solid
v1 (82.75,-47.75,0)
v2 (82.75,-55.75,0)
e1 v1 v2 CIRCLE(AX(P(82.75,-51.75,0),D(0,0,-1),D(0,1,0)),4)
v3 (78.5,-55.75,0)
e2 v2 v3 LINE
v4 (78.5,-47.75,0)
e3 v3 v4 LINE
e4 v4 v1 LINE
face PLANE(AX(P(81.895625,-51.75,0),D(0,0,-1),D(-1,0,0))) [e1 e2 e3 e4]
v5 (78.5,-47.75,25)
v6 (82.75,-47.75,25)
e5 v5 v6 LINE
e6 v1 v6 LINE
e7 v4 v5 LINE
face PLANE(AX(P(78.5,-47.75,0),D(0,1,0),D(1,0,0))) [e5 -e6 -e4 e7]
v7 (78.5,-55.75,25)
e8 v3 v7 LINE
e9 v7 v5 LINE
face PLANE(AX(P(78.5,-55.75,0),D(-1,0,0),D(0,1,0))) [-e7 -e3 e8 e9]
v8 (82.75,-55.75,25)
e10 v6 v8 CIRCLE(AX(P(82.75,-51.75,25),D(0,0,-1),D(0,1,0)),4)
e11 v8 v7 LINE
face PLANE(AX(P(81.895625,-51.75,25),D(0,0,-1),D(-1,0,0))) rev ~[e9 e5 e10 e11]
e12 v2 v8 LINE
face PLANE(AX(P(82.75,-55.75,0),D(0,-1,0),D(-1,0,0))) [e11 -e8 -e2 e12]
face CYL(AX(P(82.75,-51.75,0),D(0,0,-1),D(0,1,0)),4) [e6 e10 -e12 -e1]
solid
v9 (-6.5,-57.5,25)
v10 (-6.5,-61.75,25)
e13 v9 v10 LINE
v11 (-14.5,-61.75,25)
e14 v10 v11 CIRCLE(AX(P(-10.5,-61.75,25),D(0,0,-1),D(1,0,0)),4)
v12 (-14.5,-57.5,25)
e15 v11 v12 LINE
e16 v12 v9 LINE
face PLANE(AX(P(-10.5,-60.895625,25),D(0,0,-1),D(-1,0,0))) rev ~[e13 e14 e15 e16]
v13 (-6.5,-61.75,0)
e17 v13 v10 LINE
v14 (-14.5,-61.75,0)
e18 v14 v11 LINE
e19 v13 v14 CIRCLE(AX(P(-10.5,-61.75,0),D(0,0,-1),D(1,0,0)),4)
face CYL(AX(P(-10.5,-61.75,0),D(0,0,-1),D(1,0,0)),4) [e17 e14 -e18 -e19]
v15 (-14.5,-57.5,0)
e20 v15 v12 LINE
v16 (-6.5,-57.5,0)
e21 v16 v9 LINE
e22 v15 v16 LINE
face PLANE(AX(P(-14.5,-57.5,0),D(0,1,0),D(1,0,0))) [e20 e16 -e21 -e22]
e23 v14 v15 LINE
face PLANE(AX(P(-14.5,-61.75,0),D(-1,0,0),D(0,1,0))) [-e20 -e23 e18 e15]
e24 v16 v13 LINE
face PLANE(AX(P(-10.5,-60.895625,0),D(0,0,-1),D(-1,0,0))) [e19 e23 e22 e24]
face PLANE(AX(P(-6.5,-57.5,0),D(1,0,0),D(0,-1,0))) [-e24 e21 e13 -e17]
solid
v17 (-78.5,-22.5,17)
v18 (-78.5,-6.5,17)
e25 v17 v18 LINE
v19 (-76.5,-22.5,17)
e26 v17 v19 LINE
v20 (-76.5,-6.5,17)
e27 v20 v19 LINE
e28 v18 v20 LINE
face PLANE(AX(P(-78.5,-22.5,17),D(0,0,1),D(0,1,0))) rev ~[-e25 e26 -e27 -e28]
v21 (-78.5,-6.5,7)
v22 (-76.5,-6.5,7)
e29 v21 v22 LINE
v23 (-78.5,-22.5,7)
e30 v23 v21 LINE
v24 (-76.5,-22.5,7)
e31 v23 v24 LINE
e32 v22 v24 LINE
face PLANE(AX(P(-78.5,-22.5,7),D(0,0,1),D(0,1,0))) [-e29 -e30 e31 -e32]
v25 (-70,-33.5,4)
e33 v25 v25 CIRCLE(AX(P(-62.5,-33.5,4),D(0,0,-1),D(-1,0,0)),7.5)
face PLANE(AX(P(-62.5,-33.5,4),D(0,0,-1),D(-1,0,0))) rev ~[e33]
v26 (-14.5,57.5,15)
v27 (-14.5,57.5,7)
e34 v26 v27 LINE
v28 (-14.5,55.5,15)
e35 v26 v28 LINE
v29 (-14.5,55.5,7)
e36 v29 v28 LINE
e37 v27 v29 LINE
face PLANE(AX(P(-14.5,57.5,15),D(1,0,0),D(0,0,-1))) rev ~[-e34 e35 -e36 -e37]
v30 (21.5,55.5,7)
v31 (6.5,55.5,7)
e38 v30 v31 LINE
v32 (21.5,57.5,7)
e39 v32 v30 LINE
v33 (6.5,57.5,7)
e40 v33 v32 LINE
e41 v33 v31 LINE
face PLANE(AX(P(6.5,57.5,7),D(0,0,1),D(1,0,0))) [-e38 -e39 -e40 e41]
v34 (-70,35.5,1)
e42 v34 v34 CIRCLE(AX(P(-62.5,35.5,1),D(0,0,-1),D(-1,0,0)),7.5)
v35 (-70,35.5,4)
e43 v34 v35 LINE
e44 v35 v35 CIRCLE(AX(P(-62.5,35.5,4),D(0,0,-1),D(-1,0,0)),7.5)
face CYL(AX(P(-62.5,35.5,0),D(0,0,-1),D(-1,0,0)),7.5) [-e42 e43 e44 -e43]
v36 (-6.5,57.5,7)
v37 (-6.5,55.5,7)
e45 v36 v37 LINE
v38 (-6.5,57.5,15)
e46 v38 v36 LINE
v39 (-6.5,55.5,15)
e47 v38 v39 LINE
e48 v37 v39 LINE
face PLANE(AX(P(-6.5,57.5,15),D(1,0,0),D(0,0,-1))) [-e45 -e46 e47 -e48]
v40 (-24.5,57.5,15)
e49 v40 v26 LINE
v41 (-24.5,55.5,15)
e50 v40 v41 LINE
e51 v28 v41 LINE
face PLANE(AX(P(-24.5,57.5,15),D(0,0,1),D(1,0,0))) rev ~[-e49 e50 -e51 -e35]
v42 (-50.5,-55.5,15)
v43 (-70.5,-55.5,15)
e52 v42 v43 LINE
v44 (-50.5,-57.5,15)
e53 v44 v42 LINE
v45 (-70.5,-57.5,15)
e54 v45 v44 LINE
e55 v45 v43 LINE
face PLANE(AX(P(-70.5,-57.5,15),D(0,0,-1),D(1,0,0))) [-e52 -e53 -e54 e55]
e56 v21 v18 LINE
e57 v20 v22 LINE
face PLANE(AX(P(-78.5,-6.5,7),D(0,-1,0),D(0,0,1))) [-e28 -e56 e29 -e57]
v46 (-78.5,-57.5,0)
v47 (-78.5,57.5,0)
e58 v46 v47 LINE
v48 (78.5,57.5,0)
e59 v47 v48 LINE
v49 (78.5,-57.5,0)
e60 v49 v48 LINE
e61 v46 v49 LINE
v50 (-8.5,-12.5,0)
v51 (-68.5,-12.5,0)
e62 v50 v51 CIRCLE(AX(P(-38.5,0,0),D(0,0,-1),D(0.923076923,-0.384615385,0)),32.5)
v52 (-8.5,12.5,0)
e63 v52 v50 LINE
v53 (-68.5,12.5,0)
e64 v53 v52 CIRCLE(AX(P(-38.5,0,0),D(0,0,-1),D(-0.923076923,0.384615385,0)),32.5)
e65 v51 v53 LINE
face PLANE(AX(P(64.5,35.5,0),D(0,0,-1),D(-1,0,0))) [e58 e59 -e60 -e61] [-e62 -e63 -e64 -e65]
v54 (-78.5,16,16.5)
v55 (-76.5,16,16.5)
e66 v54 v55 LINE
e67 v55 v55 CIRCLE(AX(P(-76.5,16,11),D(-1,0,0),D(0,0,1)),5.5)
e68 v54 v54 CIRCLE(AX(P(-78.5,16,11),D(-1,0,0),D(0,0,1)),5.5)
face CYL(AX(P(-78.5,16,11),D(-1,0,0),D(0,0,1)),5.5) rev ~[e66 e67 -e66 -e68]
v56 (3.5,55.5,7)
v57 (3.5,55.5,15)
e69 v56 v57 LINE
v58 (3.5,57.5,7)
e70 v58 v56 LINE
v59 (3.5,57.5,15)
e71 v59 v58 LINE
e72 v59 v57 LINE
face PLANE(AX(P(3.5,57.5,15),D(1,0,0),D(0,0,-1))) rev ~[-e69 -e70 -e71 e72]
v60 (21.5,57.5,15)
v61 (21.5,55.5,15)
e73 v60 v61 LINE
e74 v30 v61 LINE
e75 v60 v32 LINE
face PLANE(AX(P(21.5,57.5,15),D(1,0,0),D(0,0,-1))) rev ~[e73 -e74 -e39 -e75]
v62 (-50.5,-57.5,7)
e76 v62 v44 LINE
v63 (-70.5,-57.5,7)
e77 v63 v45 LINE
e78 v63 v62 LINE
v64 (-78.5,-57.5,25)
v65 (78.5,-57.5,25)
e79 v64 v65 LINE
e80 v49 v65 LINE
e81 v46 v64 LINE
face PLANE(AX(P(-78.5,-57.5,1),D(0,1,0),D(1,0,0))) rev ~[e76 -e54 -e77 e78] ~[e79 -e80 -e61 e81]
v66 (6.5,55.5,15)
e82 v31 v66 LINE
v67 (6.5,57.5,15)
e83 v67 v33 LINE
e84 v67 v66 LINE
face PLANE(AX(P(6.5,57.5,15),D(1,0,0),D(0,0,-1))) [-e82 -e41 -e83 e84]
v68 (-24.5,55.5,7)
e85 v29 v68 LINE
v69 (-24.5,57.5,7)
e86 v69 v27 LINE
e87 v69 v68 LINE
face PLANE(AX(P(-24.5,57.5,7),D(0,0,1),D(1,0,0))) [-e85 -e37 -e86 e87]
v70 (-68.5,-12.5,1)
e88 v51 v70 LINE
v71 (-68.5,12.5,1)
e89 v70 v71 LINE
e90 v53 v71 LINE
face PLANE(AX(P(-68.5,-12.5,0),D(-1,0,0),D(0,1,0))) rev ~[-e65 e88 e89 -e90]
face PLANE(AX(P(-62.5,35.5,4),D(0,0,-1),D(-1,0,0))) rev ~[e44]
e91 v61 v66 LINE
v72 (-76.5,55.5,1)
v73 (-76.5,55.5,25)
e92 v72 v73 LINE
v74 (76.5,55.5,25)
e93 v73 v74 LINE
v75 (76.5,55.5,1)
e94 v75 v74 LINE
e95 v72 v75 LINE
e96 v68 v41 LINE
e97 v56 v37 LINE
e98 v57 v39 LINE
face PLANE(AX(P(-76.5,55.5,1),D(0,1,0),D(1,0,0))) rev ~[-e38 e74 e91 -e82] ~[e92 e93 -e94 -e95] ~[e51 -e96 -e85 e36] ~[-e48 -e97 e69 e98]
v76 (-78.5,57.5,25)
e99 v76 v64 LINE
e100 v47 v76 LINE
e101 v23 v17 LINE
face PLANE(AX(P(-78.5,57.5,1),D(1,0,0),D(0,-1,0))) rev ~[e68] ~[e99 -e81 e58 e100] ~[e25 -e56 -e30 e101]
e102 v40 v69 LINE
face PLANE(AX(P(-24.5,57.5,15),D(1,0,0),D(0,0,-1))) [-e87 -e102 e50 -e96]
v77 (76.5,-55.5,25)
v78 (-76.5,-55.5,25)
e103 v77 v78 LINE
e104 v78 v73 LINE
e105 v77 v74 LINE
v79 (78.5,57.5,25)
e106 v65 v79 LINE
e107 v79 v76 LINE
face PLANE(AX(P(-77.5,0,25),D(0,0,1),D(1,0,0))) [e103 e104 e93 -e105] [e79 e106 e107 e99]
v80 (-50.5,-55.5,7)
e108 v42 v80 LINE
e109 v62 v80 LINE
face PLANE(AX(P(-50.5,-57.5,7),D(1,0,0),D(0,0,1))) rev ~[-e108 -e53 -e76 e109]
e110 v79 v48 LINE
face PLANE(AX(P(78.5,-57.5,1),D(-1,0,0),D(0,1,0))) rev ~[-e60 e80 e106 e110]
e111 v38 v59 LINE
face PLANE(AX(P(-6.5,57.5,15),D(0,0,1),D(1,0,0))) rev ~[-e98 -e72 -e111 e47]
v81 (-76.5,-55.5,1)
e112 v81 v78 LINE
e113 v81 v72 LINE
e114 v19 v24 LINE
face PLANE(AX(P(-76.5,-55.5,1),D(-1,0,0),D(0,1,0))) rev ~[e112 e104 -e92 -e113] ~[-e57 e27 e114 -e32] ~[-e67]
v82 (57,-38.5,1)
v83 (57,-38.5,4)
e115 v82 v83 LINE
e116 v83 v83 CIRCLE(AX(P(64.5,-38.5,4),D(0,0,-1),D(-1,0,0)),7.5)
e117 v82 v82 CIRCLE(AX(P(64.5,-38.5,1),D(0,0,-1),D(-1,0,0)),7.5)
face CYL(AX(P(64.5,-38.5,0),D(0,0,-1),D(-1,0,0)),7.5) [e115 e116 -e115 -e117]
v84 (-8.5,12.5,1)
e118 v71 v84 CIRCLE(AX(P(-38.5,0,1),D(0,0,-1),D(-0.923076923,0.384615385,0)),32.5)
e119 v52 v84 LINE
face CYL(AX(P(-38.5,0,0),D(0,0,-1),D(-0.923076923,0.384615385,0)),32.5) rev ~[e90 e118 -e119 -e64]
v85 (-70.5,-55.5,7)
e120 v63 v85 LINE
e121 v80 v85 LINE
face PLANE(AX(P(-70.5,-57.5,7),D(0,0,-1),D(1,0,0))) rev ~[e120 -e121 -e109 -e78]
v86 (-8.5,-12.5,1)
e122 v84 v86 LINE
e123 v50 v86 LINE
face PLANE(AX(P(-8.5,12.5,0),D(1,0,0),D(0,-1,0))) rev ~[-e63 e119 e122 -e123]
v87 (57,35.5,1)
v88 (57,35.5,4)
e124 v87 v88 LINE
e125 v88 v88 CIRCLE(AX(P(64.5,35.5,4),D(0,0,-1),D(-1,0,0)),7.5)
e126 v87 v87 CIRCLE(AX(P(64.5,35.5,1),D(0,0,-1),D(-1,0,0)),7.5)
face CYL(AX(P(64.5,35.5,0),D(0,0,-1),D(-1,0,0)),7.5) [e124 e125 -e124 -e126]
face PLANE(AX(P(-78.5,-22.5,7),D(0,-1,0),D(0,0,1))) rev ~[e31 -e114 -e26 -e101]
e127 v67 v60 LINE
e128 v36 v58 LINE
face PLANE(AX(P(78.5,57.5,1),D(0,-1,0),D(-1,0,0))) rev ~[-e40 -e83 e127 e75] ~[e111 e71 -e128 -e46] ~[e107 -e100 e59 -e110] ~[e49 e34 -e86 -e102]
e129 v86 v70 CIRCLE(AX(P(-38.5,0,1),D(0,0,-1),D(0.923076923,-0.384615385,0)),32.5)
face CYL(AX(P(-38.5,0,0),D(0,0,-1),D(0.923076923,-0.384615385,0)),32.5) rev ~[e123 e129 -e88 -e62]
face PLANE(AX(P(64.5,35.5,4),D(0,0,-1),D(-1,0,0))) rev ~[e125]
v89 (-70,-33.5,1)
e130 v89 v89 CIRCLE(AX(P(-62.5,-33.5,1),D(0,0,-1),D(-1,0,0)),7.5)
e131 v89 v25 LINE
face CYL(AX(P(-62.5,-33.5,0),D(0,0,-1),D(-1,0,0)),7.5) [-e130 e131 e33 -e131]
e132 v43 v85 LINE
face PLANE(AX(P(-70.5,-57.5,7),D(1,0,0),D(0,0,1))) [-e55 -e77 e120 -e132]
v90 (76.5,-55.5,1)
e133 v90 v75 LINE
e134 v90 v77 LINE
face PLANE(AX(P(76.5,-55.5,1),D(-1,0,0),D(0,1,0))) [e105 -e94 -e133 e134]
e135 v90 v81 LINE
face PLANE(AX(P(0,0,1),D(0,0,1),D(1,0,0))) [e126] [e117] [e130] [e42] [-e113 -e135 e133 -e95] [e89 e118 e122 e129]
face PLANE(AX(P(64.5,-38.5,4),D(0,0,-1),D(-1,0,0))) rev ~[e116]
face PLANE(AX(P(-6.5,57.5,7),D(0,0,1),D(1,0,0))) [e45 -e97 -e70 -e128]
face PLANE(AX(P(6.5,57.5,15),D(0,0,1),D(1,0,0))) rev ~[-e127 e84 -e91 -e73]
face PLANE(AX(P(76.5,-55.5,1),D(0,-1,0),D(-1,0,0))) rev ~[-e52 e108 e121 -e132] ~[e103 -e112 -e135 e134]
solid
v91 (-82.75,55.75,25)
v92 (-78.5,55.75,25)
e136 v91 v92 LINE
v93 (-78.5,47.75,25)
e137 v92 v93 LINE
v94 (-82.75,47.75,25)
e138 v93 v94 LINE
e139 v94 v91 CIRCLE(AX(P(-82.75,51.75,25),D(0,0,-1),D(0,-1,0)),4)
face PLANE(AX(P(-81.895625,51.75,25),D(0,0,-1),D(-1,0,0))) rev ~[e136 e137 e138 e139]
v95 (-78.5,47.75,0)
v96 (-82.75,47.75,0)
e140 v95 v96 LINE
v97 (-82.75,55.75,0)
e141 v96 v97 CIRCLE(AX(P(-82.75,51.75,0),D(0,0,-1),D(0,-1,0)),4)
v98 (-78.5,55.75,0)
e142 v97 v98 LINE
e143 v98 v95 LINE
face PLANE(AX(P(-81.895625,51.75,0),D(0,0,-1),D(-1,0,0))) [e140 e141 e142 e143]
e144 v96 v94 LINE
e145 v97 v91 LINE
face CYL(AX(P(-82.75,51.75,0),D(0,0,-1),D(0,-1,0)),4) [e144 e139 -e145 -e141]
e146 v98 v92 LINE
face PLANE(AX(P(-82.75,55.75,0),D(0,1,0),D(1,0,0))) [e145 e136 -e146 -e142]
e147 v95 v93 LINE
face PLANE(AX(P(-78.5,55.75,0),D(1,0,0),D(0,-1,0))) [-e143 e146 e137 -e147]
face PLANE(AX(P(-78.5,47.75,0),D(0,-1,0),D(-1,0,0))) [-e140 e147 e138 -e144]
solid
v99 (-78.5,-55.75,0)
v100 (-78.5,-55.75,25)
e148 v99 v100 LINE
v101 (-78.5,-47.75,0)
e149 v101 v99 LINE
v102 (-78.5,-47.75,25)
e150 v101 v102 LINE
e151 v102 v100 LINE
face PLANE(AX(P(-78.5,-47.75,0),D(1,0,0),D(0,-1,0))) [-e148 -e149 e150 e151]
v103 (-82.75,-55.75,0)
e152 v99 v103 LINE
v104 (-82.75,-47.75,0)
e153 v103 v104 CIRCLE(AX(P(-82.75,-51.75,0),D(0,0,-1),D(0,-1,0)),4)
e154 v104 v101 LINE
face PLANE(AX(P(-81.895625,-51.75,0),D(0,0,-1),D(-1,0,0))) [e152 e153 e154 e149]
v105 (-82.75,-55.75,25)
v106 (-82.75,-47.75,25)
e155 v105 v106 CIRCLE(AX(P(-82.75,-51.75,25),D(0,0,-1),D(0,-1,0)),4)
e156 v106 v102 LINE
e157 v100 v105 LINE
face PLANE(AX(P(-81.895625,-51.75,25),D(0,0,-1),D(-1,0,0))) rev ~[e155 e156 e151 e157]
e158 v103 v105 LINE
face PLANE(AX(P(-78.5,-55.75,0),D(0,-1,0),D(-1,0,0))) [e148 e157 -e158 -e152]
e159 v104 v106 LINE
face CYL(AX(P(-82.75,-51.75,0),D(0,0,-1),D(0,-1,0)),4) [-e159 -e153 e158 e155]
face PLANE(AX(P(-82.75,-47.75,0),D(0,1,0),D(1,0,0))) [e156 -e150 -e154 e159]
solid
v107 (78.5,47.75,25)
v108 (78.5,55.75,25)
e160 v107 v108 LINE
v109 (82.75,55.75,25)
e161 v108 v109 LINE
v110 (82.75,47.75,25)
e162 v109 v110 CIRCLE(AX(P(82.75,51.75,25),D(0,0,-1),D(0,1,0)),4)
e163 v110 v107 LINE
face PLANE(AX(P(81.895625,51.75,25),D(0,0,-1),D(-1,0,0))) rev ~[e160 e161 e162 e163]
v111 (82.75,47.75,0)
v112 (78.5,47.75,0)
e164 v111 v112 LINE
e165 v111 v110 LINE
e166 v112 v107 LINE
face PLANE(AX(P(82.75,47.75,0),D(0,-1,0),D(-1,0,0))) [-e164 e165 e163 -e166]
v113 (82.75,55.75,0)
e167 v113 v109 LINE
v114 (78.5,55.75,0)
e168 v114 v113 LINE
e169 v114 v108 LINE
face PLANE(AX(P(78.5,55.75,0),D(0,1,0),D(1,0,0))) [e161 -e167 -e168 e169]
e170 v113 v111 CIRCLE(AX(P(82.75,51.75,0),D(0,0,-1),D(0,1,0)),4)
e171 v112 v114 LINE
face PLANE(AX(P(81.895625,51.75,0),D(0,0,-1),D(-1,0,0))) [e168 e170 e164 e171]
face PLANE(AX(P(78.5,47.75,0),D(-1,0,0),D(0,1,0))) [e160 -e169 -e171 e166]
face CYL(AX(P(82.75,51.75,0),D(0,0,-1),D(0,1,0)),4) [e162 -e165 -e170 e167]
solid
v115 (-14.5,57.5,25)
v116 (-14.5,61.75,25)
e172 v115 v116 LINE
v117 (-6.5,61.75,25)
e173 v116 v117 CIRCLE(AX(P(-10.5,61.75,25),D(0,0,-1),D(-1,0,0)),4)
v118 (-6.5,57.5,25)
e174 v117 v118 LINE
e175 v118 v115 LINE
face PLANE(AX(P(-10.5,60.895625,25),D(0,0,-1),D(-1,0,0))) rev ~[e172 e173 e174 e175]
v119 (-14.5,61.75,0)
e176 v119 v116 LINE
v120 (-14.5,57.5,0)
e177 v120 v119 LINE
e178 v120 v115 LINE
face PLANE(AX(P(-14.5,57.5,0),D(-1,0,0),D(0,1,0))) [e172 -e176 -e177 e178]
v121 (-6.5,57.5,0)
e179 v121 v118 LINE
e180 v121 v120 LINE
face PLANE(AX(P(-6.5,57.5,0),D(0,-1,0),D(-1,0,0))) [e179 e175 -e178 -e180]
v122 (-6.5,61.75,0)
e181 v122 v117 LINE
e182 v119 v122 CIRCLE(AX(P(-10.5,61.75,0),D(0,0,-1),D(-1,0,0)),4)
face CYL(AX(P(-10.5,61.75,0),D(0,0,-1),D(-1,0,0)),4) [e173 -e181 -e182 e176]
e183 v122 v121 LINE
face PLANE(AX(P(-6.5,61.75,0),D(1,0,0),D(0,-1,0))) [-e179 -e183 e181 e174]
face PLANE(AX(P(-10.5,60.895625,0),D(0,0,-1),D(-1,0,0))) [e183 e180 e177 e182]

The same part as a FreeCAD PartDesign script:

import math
import FreeCAD as App
import Part
import Sketcher
Q = App.Units.Quantity


def add_polygon(sketch, points):
    """Adds a closed chain of lines whose ends are joined by coincident constraints."""
    first, n = sketch.GeometryCount, len(points)
    for a, b in zip(points, points[1:] + points[:1]):
        sketch.addGeometry(Part.LineSegment(App.Vector(*a, 0), App.Vector(*b, 0)), False)
    for i in range(n):
        sketch.addConstraint(Sketcher.Constraint("Coincident", first + i, 2, first + (i + 1) % n, 1))

doc = App.newDocument("Part")
params = doc.addObject("Spreadsheet::Sheet", "Params")
for row, (alias, value) in enumerate([
    ("sketch1_width", "157 mm"),
    ("sketch1_height", "115 mm"),
    ("pad1_length", "1 mm"),
    ("sketch2_width", "157 mm"),
    ("sketch2_width2", "153 mm"),
    ("sketch2_height", "115 mm"),
    ("sketch2_height2", "111 mm"),
    ("pad2_length", "24 mm"),
    ("sketch3_diameter", "11 mm"),
    ("sketch4_width", "16 mm"),
    ("sketch4_height", "10 mm"),
    ("sketch5_width", "20 mm"),
    ("sketch5_height", "8 mm"),
    ("sketch6_width", "10 mm"),
    ("sketch6_height", "8 mm"),
    ("sketch7_width", "10 mm"),
    ("sketch7_height", "8 mm"),
    ("sketch8_width", "15 mm"),
    ("sketch8_height", "8 mm"),
    ("sketch9_diameter", "15 mm"),
    ("pad3_length", "4 mm"),
    ("sketch10_radius", "32.5 mm"),
    ("sketch10_height", "25 mm"),
    ("sketch11_radius", "4 mm"),
    ("sketch11_width", "4.25 mm"),
    ("pad4_length", "25 mm"),
    ("sketch12_radius", "4 mm"),
    ("sketch12_width", "4.25 mm"),
    ("pad5_length", "25 mm"),
    ("sketch13_radius", "4 mm"),
    ("sketch13_width", "4.25 mm"),
    ("pad6_length", "25 mm"),
    ("sketch14_radius", "4 mm"),
    ("sketch14_width", "4.25 mm"),
    ("pad7_length", "25 mm"),
    ("sketch15_radius", "4 mm"),
    ("sketch15_height", "4.25 mm"),
    ("pad8_length", "25 mm"),
    ("sketch16_radius", "4 mm"),
    ("sketch16_height", "4.25 mm"),
    ("pad9_length", "25 mm"),
], start=1):
    params.set(f"A{row}", alias)
    params.set(f"B{row}", "=" + value)
    params.setAlias(f"B{row}", alias)

body = doc.addObject("PartDesign::Body", "Body")

sketch1 = body.newObject("Sketcher::SketchObject", "Sketch")
sketch1.AttachmentSupport = (doc.getObject("XY_Plane"), [""])
sketch1.MapMode = "FlatFace"
add_polygon(sketch1, [(-78, 58), (-78, -58), (78, -58), (78, 58)])
sketch1.addConstraint([
    Sketcher.Constraint("Vertical", 0),
    Sketcher.Constraint("Horizontal", 1),
    Sketcher.Constraint("Vertical", 2),
    Sketcher.Constraint("Horizontal", 3),
    Sketcher.Constraint("Symmetric", 0, 2, 2, 2, -1, 1),
    Sketcher.Constraint("DistanceX", 1, 1, 1, 2, Q("157 mm")),
    Sketcher.Constraint("DistanceY", 0, 2, 0, 1, Q("115 mm")),
])
sketch1.setExpression("Constraints[9]", "Params.sketch1_width")
sketch1.setExpression("Constraints[10]", "Params.sketch1_height")
pad1 = body.newObject("PartDesign::Pad", "Pad")
pad1.Profile = sketch1
pad1.setExpression("Length", "Params.pad1_length")

sketch2 = body.newObject("Sketcher::SketchObject", "Sketch001")
sketch2.AttachmentSupport = (doc.getObject("XY_Plane"), [""])
sketch2.MapMode = "FlatFace"
sketch2.AttachmentOffset = App.Placement(App.Vector(0, 0, 1), App.Rotation())
add_polygon(sketch2, [(78, 58), (-78, 58), (-78, -58), (78, -58)])
add_polygon(sketch2, [(-76, -56), (-76, 56), (76, 56), (76, -56)])
sketch2.addConstraint([
    Sketcher.Constraint("Horizontal", 0),
    Sketcher.Constraint("Vertical", 1),
    Sketcher.Constraint("Horizontal", 2),
    Sketcher.Constraint("Vertical", 3),
    Sketcher.Constraint("Vertical", 4),
    Sketcher.Constraint("Horizontal", 5),
    Sketcher.Constraint("Vertical", 6),
    Sketcher.Constraint("Horizontal", 7),
    Sketcher.Constraint("Symmetric", 0, 2, 2, 2, -1, 1),
    Sketcher.Constraint("Symmetric", 4, 2, 6, 2, -1, 1),
    Sketcher.Constraint("DistanceX", 0, 2, 0, 1, Q("157 mm")),
    Sketcher.Constraint("DistanceX", 5, 1, 5, 2, Q("153 mm")),
    Sketcher.Constraint("DistanceY", 1, 2, 1, 1, Q("115 mm")),
    Sketcher.Constraint("DistanceY", 4, 1, 4, 2, Q("111 mm")),
])
sketch2.setExpression("Constraints[18]", "Params.sketch2_width")
sketch2.setExpression("Constraints[19]", "Params.sketch2_width2")
sketch2.setExpression("Constraints[20]", "Params.sketch2_height")
sketch2.setExpression("Constraints[21]", "Params.sketch2_height2")
pad2 = body.newObject("PartDesign::Pad", "Pad001")
pad2.Profile = sketch2
pad2.setExpression("Length", "Params.pad2_length")

sketch3 = body.newObject("Sketcher::SketchObject", "Sketch002")
sketch3.AttachmentSupport = (doc.getObject("YZ_Plane"), [""])
sketch3.MapMode = "FlatFace"
sketch3.AttachmentOffset = App.Placement(App.Vector(0, 0, -78.5), App.Rotation())
sketch3.addGeometry(Part.Circle(App.Vector(16, 11, 0), App.Vector(0, 0, 1), 6), False)
sketch3.addConstraint([
    Sketcher.Constraint("Diameter", 0, Q("11 mm")),
    Sketcher.Constraint("DistanceX", -1, 1, 0, 3, Q("16 mm")),
    Sketcher.Constraint("DistanceY", -1, 1, 0, 3, Q("11 mm")),
])
sketch3.setExpression("Constraints[0]", "Params.sketch3_diameter")
pocket1 = body.newObject("PartDesign::Pocket", "Pocket")
pocket1.Profile = sketch3
pocket1.Type = "UpToFirst"
pocket1.Reversed = True

sketch4 = body.newObject("Sketcher::SketchObject", "Sketch003")
sketch4.AttachmentSupport = (doc.getObject("YZ_Plane"), [""])
sketch4.MapMode = "FlatFace"
sketch4.AttachmentOffset = App.Placement(App.Vector(0, 0, -78.5), App.Rotation())
add_polygon(sketch4, [(-6, 7), (-22, 7), (-22, 17), (-6, 17)])
sketch4.addConstraint([
    Sketcher.Constraint("Horizontal", 0),
    Sketcher.Constraint("Vertical", 1),
    Sketcher.Constraint("Horizontal", 2),
    Sketcher.Constraint("Vertical", 3),
    Sketcher.Constraint("DistanceX", 0, 2, 0, 1, Q("16 mm")),
    Sketcher.Constraint("DistanceY", 1, 1, 1, 2, Q("10 mm")),
    Sketcher.Constraint("DistanceY", -1, 1, 0, 2, Q("7 mm")),
    Sketcher.Constraint("DistanceX", 0, 2, -1, 1, Q("22.5 mm")),
])
sketch4.setExpression("Constraints[8]", "Params.sketch4_width")
sketch4.setExpression("Constraints[9]", "Params.sketch4_height")
pocket2 = body.newObject("PartDesign::Pocket", "Pocket001")
pocket2.Profile = sketch4
pocket2.Type = "UpToFirst"
pocket2.Reversed = True

sketch5 = body.newObject("Sketcher::SketchObject", "Sketch004")
sketch5.AttachmentSupport = (doc.getObject("XZ_Plane"), [""])
sketch5.MapMode = "FlatFace"
sketch5.AttachmentOffset = App.Placement(App.Vector(0, 0, 57.5), App.Rotation())
add_polygon(sketch5, [(-70, 15), (-70, 7), (-50, 7), (-50, 15)])
sketch5.addConstraint([
    Sketcher.Constraint("Vertical", 0),
    Sketcher.Constraint("Horizontal", 1),
    Sketcher.Constraint("Vertical", 2),
    Sketcher.Constraint("Horizontal", 3),
    Sketcher.Constraint("DistanceX", 1, 1, 1, 2, Q("20 mm")),
    Sketcher.Constraint("DistanceY", 0, 2, 0, 1, Q("8 mm")),
    Sketcher.Constraint("DistanceY", -1, 1, 0, 2, Q("7 mm")),
    Sketcher.Constraint("DistanceX", 0, 2, -1, 1, Q("70.5 mm")),
])
sketch5.setExpression("Constraints[8]", "Params.sketch5_width")
sketch5.setExpression("Constraints[9]", "Params.sketch5_height")
pocket3 = body.newObject("PartDesign::Pocket", "Pocket002")
pocket3.Profile = sketch5
pocket3.Type = "UpToFirst"

sketch6 = body.newObject("Sketcher::SketchObject", "Sketch005")
sketch6.AttachmentSupport = (doc.getObject("XZ_Plane"), [""])
sketch6.MapMode = "FlatFace"
sketch6.AttachmentOffset = App.Placement(App.Vector(0, 0, -57.5), App.Rotation())
add_polygon(sketch6, [(-24, 7), (-24, 15), (-14, 15), (-14, 7)])
sketch6.addConstraint([
    Sketcher.Constraint("Vertical", 0),
    Sketcher.Constraint("Horizontal", 1),
    Sketcher.Constraint("Vertical", 2),
    Sketcher.Constraint("Horizontal", 3),
    Sketcher.Constraint("DistanceX", 1, 1, 1, 2, Q("10 mm")),
    Sketcher.Constraint("DistanceY", 0, 1, 0, 2, Q("8 mm")),
    Sketcher.Constraint("DistanceY", -1, 1, 0, 2, Q("15 mm")),
    Sketcher.Constraint("DistanceX", 0, 2, -1, 1, Q("24.5 mm")),
])
sketch6.setExpression("Constraints[8]", "Params.sketch6_width")
sketch6.setExpression("Constraints[9]", "Params.sketch6_height")
pocket4 = body.newObject("PartDesign::Pocket", "Pocket003")
pocket4.Profile = sketch6
pocket4.Type = "UpToFirst"
pocket4.Reversed = True

sketch7 = body.newObject("Sketcher::SketchObject", "Sketch006")
sketch7.AttachmentSupport = (doc.getObject("XZ_Plane"), [""])
sketch7.MapMode = "FlatFace"
sketch7.AttachmentOffset = App.Placement(App.Vector(0, 0, -57.5), App.Rotation())
add_polygon(sketch7, [(-6, 7), (-6, 15), (4, 15), (4, 7)])
sketch7.addConstraint([
    Sketcher.Constraint("Vertical", 0),
    Sketcher.Constraint("Horizontal", 1),
    Sketcher.Constraint("Vertical", 2),
    Sketcher.Constraint("Horizontal", 3),
    Sketcher.Constraint("DistanceX", 1, 1, 1, 2, Q("10 mm")),
    Sketcher.Constraint("DistanceY", 0, 1, 0, 2, Q("8 mm")),
    Sketcher.Constraint("DistanceY", -1, 1, 0, 2, Q("15 mm")),
    Sketcher.Constraint("DistanceX", 0, 2, -1, 1, Q("6.5 mm")),
])
sketch7.setExpression("Constraints[8]", "Params.sketch7_width")
sketch7.setExpression("Constraints[9]", "Params.sketch7_height")
pocket5 = body.newObject("PartDesign::Pocket", "Pocket004")
pocket5.Profile = sketch7
pocket5.Type = "UpToFirst"
pocket5.Reversed = True

sketch8 = body.newObject("Sketcher::SketchObject", "Sketch007")
sketch8.AttachmentSupport = (doc.getObject("XZ_Plane"), [""])
sketch8.MapMode = "FlatFace"
sketch8.AttachmentOffset = App.Placement(App.Vector(0, 0, -57.5), App.Rotation())
add_polygon(sketch8, [(6, 7), (6, 15), (22, 15), (22, 7)])
sketch8.addConstraint([
    Sketcher.Constraint("Vertical", 0),
    Sketcher.Constraint("Horizontal", 1),
    Sketcher.Constraint("Vertical", 2),
    Sketcher.Constraint("Horizontal", 3),
    Sketcher.Constraint("DistanceX", 1, 1, 1, 2, Q("15 mm")),
    Sketcher.Constraint("DistanceY", 0, 1, 0, 2, Q("8 mm")),
    Sketcher.Constraint("DistanceY", -1, 1, 0, 2, Q("15 mm")),
    Sketcher.Constraint("DistanceX", -1, 1, 0, 2, Q("6.5 mm")),
])
sketch8.setExpression("Constraints[8]", "Params.sketch8_width")
sketch8.setExpression("Constraints[9]", "Params.sketch8_height")
pocket6 = body.newObject("PartDesign::Pocket", "Pocket005")
pocket6.Profile = sketch8
pocket6.Type = "UpToFirst"
pocket6.Reversed = True

sketch9 = body.newObject("Sketcher::SketchObject", "Sketch008")
sketch9.AttachmentSupport = (doc.getObject("XY_Plane"), [""])
sketch9.MapMode = "FlatFace"
sketch9.addGeometry([
    Part.Circle(App.Vector(64, 36, 0), App.Vector(0, 0, 1), 8),
    Part.Circle(App.Vector(-62, 36, 0), App.Vector(0, 0, 1), 8),
    Part.Circle(App.Vector(-62, -34, 0), App.Vector(0, 0, 1), 8),
    Part.Circle(App.Vector(64, -38, 0), App.Vector(0, 0, 1), 8),
], False)
sketch9.addConstraint([
    Sketcher.Constraint("Equal", 0, 1),
    Sketcher.Constraint("Equal", 1, 2),
    Sketcher.Constraint("Equal", 2, 3),
    Sketcher.Constraint("Horizontal", 0, 3, 1, 3),
    Sketcher.Constraint("Vertical", 1, 3, 2, 3),
    Sketcher.Constraint("Vertical", 0, 3, 3, 3),
    Sketcher.Constraint("Diameter", 0, Q("15 mm")),
    Sketcher.Constraint("DistanceX", 1, 3, 0, 3, Q("127 mm")),
    Sketcher.Constraint("DistanceY", 2, 3, 1, 3, Q("69 mm")),
    Sketcher.Constraint("DistanceY", 3, 3, 0, 3, Q("74 mm")),
    Sketcher.Constraint("DistanceX", -1, 1, 0, 3, Q("64.5 mm")),
    Sketcher.Constraint("DistanceY", -1, 1, 0, 3, Q("35.5 mm")),
])
sketch9.setExpression("Constraints[6]", "Params.sketch9_diameter")
pad3 = body.newObject("PartDesign::Pad", "Pad002")
pad3.Profile = sketch9
pad3.setExpression("Length", "Params.pad3_length")

sketch10 = body.newObject("Sketcher::SketchObject", "Sketch009")
sketch10.AttachmentSupport = (doc.getObject("XY_Plane"), [""])
sketch10.MapMode = "FlatFace"
sketch10.addGeometry([
    Part.LineSegment(App.Vector(-8, 12, 0), App.Vector(-8, -12, 0)),
    Part.ArcOfCircle(Part.Circle(App.Vector(-38, 0, 0), App.Vector(0, 0, 1), 32), math.radians(-157), math.radians(-23)),
    Part.LineSegment(App.Vector(-68, -12, 0), App.Vector(-68, 12, 0)),
    Part.ArcOfCircle(Part.Circle(App.Vector(-38, 0, 0), App.Vector(0, 0, 1), 32), math.radians(23), math.radians(157)),
], False)
sketch10.addConstraint([
    Sketcher.Constraint("Coincident", 0, 2, 1, 2),
    Sketcher.Constraint("Coincident", 1, 1, 2, 1),
    Sketcher.Constraint("Coincident", 2, 2, 3, 2),
    Sketcher.Constraint("Coincident", 3, 1, 0, 1),
    Sketcher.Constraint("Vertical", 0),
    Sketcher.Constraint("Vertical", 2),
    Sketcher.Constraint("Coincident", 3, 3, 1, 3),
    Sketcher.Constraint("Equal", 1, 3),
    Sketcher.Constraint("PointOnObject", 1, 3, -1),
    Sketcher.Constraint("Horizontal", 0, 2, 1, 1),
    Sketcher.Constraint("Radius", 1, Q("32.5 mm")),
    Sketcher.Constraint("DistanceY", 0, 2, 0, 1, Q("25 mm")),
    Sketcher.Constraint("DistanceX", 1, 3, -1, 1, Q("38.5 mm")),
])
sketch10.setExpression("Constraints[10]", "Params.sketch10_radius")
sketch10.setExpression("Constraints[11]", "Params.sketch10_height")
pocket7 = body.newObject("PartDesign::Pocket", "Pocket006")
pocket7.Profile = sketch10
pocket7.Type = "UpToFirst"
pocket7.Reversed = True
body2 = doc.addObject("PartDesign::Body", "Body001")

sketch11 = body2.newObject("Sketcher::SketchObject", "Sketch010")
sketch11.AttachmentSupport = (doc.getObject("XY_Plane001"), [""])
sketch11.MapMode = "FlatFace"
sketch11.addGeometry([
    Part.LineSegment(App.Vector(82.8, -55.8, 0), App.Vector(78.5, -55.8, 0)),
    Part.LineSegment(App.Vector(78.5, -55.8, 0), App.Vector(78.5, -47.8, 0)),
    Part.LineSegment(App.Vector(78.5, -47.8, 0), App.Vector(82.8, -47.8, 0)),
    Part.ArcOfCircle(Part.Circle(App.Vector(82.8, -51.8, 0), App.Vector(0, 0, 1), 4), math.radians(-90), math.radians(90)),
], False)
sketch11.addConstraint([
    Sketcher.Constraint("Coincident", 0, 2, 1, 1),
    Sketcher.Constraint("Coincident", 1, 2, 2, 1),
    Sketcher.Constraint("Tangent", 2, 2, 3, 2),
    Sketcher.Constraint("Tangent", 3, 1, 0, 1),
    Sketcher.Constraint("Horizontal", 0),
    Sketcher.Constraint("Vertical", 1),
    Sketcher.Constraint("Horizontal", 2),
    Sketcher.Constraint("Radius", 3, Q("4 mm")),
    Sketcher.Constraint("DistanceX", 0, 2, 0, 1, Q("4.25 mm")),
    Sketcher.Constraint("DistanceX", -1, 1, 0, 2, Q("78.5 mm")),
    Sketcher.Constraint("DistanceY", 3, 3, -1, 1, Q("51.75 mm")),
])
sketch11.setExpression("Constraints[7]", "Params.sketch11_radius")
sketch11.setExpression("Constraints[8]", "Params.sketch11_width")
pad4 = body2.newObject("PartDesign::Pad", "Pad003")
pad4.Profile = sketch11
pad4.setExpression("Length", "Params.pad4_length")
body3 = doc.addObject("PartDesign::Body", "Body002")

sketch12 = body3.newObject("Sketcher::SketchObject", "Sketch011")
sketch12.AttachmentSupport = (doc.getObject("XY_Plane002"), [""])
sketch12.MapMode = "FlatFace"
sketch12.addGeometry([
    Part.LineSegment(App.Vector(78.5, 47.8, 0), App.Vector(78.5, 55.8, 0)),
    Part.LineSegment(App.Vector(78.5, 55.8, 0), App.Vector(82.8, 55.8, 0)),
    Part.ArcOfCircle(Part.Circle(App.Vector(82.8, 51.8, 0), App.Vector(0, 0, 1), 4), math.radians(-90), math.radians(90)),
    Part.LineSegment(App.Vector(82.8, 47.8, 0), App.Vector(78.5, 47.8, 0)),
], False)
sketch12.addConstraint([
    Sketcher.Constraint("Coincident", 0, 2, 1, 1),
    Sketcher.Constraint("Tangent", 1, 2, 2, 2),
    Sketcher.Constraint("Tangent", 2, 1, 3, 1),
    Sketcher.Constraint("Coincident", 3, 2, 0, 1),
    Sketcher.Constraint("Vertical", 0),
    Sketcher.Constraint("Horizontal", 1),
    Sketcher.Constraint("Horizontal", 3),
    Sketcher.Constraint("Radius", 2, Q("4 mm")),
    Sketcher.Constraint("DistanceX", 1, 1, 1, 2, Q("4.25 mm")),
    Sketcher.Constraint("DistanceX", -1, 1, 0, 2, Q("78.5 mm")),
    Sketcher.Constraint("DistanceY", -1, 1, 2, 3, Q("51.75 mm")),
])
sketch12.setExpression("Constraints[7]", "Params.sketch12_radius")
sketch12.setExpression("Constraints[8]", "Params.sketch12_width")
pad5 = body3.newObject("PartDesign::Pad", "Pad004")
pad5.Profile = sketch12
pad5.setExpression("Length", "Params.pad5_length")
body4 = doc.addObject("PartDesign::Body", "Body003")

sketch13 = body4.newObject("Sketcher::SketchObject", "Sketch012")
sketch13.AttachmentSupport = (doc.getObject("XY_Plane003"), [""])
sketch13.MapMode = "FlatFace"
sketch13.addGeometry([
    Part.LineSegment(App.Vector(-78.5, -47.8, 0), App.Vector(-78.5, -55.8, 0)),
    Part.LineSegment(App.Vector(-78.5, -55.8, 0), App.Vector(-82.8, -55.8, 0)),
    Part.ArcOfCircle(Part.Circle(App.Vector(-82.8, -51.8, 0), App.Vector(0, 0, 1), 4), math.radians(90), math.radians(270)),
    Part.LineSegment(App.Vector(-82.8, -47.8, 0), App.Vector(-78.5, -47.8, 0)),
], False)
sketch13.addConstraint([
    Sketcher.Constraint("Coincident", 0, 2, 1, 1),
    Sketcher.Constraint("Tangent", 1, 2, 2, 2),
    Sketcher.Constraint("Tangent", 2, 1, 3, 1),
    Sketcher.Constraint("Coincident", 3, 2, 0, 1),
    Sketcher.Constraint("Vertical", 0),
    Sketcher.Constraint("Horizontal", 1),
    Sketcher.Constraint("Horizontal", 3),
    Sketcher.Constraint("Radius", 2, Q("4 mm")),
    Sketcher.Constraint("DistanceX", 1, 2, 1, 1, Q("4.25 mm")),
    Sketcher.Constraint("DistanceX", 0, 2, -1, 1, Q("78.5 mm")),
    Sketcher.Constraint("DistanceY", 2, 3, -1, 1, Q("51.75 mm")),
])
sketch13.setExpression("Constraints[7]", "Params.sketch13_radius")
sketch13.setExpression("Constraints[8]", "Params.sketch13_width")
pad6 = body4.newObject("PartDesign::Pad", "Pad005")
pad6.Profile = sketch13
pad6.setExpression("Length", "Params.pad6_length")
body5 = doc.addObject("PartDesign::Body", "Body004")

sketch14 = body5.newObject("Sketcher::SketchObject", "Sketch013")
sketch14.AttachmentSupport = (doc.getObject("XY_Plane004"), [""])
sketch14.MapMode = "FlatFace"
sketch14.addGeometry([
    Part.LineSegment(App.Vector(-82.8, 55.8, 0), App.Vector(-78.5, 55.8, 0)),
    Part.LineSegment(App.Vector(-78.5, 55.8, 0), App.Vector(-78.5, 47.8, 0)),
    Part.LineSegment(App.Vector(-78.5, 47.8, 0), App.Vector(-82.8, 47.8, 0)),
    Part.ArcOfCircle(Part.Circle(App.Vector(-82.8, 51.8, 0), App.Vector(0, 0, 1), 4), math.radians(90), math.radians(270)),
], False)
sketch14.addConstraint([
    Sketcher.Constraint("Coincident", 0, 2, 1, 1),
    Sketcher.Constraint("Coincident", 1, 2, 2, 1),
    Sketcher.Constraint("Tangent", 2, 2, 3, 2),
    Sketcher.Constraint("Tangent", 3, 1, 0, 1),
    Sketcher.Constraint("Horizontal", 0),
    Sketcher.Constraint("Vertical", 1),
    Sketcher.Constraint("Horizontal", 2),
    Sketcher.Constraint("Radius", 3, Q("4 mm")),
    Sketcher.Constraint("DistanceX", 0, 1, 0, 2, Q("4.25 mm")),
    Sketcher.Constraint("DistanceX", 0, 2, -1, 1, Q("78.5 mm")),
    Sketcher.Constraint("DistanceY", -1, 1, 3, 3, Q("51.75 mm")),
])
sketch14.setExpression("Constraints[7]", "Params.sketch14_radius")
sketch14.setExpression("Constraints[8]", "Params.sketch14_width")
pad7 = body5.newObject("PartDesign::Pad", "Pad006")
pad7.Profile = sketch14
pad7.setExpression("Length", "Params.pad7_length")
body6 = doc.addObject("PartDesign::Body", "Body005")

sketch15 = body6.newObject("Sketcher::SketchObject", "Sketch014")
sketch15.AttachmentSupport = (doc.getObject("XY_Plane005"), [""])
sketch15.MapMode = "FlatFace"
sketch15.addGeometry([
    Part.LineSegment(App.Vector(-6.5, 57.5, 0), App.Vector(-14.5, 57.5, 0)),
    Part.LineSegment(App.Vector(-14.5, 57.5, 0), App.Vector(-14.5, 61.8, 0)),
    Part.ArcOfCircle(Part.Circle(App.Vector(-10.5, 61.8, 0), App.Vector(0, 0, 1), 4), math.radians(0), math.radians(180)),
    Part.LineSegment(App.Vector(-6.5, 61.8, 0), App.Vector(-6.5, 57.5, 0)),
], False)
sketch15.addConstraint([
    Sketcher.Constraint("Coincident", 0, 2, 1, 1),
    Sketcher.Constraint("Tangent", 1, 2, 2, 2),
    Sketcher.Constraint("Tangent", 2, 1, 3, 1),
    Sketcher.Constraint("Coincident", 3, 2, 0, 1),
    Sketcher.Constraint("Horizontal", 0),
    Sketcher.Constraint("Vertical", 1),
    Sketcher.Constraint("Vertical", 3),
    Sketcher.Constraint("Radius", 2, Q("4 mm")),
    Sketcher.Constraint("DistanceY", 1, 1, 1, 2, Q("4.25 mm")),
    Sketcher.Constraint("DistanceX", 2, 3, -1, 1, Q("10.5 mm")),
    Sketcher.Constraint("DistanceY", -1, 1, 0, 2, Q("57.5 mm")),
])
sketch15.setExpression("Constraints[7]", "Params.sketch15_radius")
sketch15.setExpression("Constraints[8]", "Params.sketch15_height")
pad8 = body6.newObject("PartDesign::Pad", "Pad007")
pad8.Profile = sketch15
pad8.setExpression("Length", "Params.pad8_length")
body7 = doc.addObject("PartDesign::Body", "Body006")

sketch16 = body7.newObject("Sketcher::SketchObject", "Sketch015")
sketch16.AttachmentSupport = (doc.getObject("XY_Plane006"), [""])
sketch16.MapMode = "FlatFace"
sketch16.addGeometry([
    Part.LineSegment(App.Vector(-14.5, -61.8, 0), App.Vector(-14.5, -57.5, 0)),
    Part.LineSegment(App.Vector(-14.5, -57.5, 0), App.Vector(-6.5, -57.5, 0)),
    Part.LineSegment(App.Vector(-6.5, -57.5, 0), App.Vector(-6.5, -61.8, 0)),
    Part.ArcOfCircle(Part.Circle(App.Vector(-10.5, -61.8, 0), App.Vector(0, 0, 1), 4), math.radians(180), math.radians(360)),
], False)
sketch16.addConstraint([
    Sketcher.Constraint("Coincident", 0, 2, 1, 1),
    Sketcher.Constraint("Coincident", 1, 2, 2, 1),
    Sketcher.Constraint("Tangent", 2, 2, 3, 2),
    Sketcher.Constraint("Tangent", 3, 1, 0, 1),
    Sketcher.Constraint("Vertical", 0),
    Sketcher.Constraint("Horizontal", 1),
    Sketcher.Constraint("Vertical", 2),
    Sketcher.Constraint("Radius", 3, Q("4 mm")),
    Sketcher.Constraint("DistanceY", 0, 1, 0, 2, Q("4.25 mm")),
    Sketcher.Constraint("DistanceX", 3, 3, -1, 1, Q("10.5 mm")),
    Sketcher.Constraint("DistanceY", 0, 2, -1, 1, Q("57.5 mm")),
])
sketch16.setExpression("Constraints[7]", "Params.sketch16_radius")
sketch16.setExpression("Constraints[8]", "Params.sketch16_height")
pad9 = body7.newObject("PartDesign::Pad", "Pad008")
pad9.Profile = sketch16
pad9.setExpression("Length", "Params.pad9_length")

doc.recompute()
